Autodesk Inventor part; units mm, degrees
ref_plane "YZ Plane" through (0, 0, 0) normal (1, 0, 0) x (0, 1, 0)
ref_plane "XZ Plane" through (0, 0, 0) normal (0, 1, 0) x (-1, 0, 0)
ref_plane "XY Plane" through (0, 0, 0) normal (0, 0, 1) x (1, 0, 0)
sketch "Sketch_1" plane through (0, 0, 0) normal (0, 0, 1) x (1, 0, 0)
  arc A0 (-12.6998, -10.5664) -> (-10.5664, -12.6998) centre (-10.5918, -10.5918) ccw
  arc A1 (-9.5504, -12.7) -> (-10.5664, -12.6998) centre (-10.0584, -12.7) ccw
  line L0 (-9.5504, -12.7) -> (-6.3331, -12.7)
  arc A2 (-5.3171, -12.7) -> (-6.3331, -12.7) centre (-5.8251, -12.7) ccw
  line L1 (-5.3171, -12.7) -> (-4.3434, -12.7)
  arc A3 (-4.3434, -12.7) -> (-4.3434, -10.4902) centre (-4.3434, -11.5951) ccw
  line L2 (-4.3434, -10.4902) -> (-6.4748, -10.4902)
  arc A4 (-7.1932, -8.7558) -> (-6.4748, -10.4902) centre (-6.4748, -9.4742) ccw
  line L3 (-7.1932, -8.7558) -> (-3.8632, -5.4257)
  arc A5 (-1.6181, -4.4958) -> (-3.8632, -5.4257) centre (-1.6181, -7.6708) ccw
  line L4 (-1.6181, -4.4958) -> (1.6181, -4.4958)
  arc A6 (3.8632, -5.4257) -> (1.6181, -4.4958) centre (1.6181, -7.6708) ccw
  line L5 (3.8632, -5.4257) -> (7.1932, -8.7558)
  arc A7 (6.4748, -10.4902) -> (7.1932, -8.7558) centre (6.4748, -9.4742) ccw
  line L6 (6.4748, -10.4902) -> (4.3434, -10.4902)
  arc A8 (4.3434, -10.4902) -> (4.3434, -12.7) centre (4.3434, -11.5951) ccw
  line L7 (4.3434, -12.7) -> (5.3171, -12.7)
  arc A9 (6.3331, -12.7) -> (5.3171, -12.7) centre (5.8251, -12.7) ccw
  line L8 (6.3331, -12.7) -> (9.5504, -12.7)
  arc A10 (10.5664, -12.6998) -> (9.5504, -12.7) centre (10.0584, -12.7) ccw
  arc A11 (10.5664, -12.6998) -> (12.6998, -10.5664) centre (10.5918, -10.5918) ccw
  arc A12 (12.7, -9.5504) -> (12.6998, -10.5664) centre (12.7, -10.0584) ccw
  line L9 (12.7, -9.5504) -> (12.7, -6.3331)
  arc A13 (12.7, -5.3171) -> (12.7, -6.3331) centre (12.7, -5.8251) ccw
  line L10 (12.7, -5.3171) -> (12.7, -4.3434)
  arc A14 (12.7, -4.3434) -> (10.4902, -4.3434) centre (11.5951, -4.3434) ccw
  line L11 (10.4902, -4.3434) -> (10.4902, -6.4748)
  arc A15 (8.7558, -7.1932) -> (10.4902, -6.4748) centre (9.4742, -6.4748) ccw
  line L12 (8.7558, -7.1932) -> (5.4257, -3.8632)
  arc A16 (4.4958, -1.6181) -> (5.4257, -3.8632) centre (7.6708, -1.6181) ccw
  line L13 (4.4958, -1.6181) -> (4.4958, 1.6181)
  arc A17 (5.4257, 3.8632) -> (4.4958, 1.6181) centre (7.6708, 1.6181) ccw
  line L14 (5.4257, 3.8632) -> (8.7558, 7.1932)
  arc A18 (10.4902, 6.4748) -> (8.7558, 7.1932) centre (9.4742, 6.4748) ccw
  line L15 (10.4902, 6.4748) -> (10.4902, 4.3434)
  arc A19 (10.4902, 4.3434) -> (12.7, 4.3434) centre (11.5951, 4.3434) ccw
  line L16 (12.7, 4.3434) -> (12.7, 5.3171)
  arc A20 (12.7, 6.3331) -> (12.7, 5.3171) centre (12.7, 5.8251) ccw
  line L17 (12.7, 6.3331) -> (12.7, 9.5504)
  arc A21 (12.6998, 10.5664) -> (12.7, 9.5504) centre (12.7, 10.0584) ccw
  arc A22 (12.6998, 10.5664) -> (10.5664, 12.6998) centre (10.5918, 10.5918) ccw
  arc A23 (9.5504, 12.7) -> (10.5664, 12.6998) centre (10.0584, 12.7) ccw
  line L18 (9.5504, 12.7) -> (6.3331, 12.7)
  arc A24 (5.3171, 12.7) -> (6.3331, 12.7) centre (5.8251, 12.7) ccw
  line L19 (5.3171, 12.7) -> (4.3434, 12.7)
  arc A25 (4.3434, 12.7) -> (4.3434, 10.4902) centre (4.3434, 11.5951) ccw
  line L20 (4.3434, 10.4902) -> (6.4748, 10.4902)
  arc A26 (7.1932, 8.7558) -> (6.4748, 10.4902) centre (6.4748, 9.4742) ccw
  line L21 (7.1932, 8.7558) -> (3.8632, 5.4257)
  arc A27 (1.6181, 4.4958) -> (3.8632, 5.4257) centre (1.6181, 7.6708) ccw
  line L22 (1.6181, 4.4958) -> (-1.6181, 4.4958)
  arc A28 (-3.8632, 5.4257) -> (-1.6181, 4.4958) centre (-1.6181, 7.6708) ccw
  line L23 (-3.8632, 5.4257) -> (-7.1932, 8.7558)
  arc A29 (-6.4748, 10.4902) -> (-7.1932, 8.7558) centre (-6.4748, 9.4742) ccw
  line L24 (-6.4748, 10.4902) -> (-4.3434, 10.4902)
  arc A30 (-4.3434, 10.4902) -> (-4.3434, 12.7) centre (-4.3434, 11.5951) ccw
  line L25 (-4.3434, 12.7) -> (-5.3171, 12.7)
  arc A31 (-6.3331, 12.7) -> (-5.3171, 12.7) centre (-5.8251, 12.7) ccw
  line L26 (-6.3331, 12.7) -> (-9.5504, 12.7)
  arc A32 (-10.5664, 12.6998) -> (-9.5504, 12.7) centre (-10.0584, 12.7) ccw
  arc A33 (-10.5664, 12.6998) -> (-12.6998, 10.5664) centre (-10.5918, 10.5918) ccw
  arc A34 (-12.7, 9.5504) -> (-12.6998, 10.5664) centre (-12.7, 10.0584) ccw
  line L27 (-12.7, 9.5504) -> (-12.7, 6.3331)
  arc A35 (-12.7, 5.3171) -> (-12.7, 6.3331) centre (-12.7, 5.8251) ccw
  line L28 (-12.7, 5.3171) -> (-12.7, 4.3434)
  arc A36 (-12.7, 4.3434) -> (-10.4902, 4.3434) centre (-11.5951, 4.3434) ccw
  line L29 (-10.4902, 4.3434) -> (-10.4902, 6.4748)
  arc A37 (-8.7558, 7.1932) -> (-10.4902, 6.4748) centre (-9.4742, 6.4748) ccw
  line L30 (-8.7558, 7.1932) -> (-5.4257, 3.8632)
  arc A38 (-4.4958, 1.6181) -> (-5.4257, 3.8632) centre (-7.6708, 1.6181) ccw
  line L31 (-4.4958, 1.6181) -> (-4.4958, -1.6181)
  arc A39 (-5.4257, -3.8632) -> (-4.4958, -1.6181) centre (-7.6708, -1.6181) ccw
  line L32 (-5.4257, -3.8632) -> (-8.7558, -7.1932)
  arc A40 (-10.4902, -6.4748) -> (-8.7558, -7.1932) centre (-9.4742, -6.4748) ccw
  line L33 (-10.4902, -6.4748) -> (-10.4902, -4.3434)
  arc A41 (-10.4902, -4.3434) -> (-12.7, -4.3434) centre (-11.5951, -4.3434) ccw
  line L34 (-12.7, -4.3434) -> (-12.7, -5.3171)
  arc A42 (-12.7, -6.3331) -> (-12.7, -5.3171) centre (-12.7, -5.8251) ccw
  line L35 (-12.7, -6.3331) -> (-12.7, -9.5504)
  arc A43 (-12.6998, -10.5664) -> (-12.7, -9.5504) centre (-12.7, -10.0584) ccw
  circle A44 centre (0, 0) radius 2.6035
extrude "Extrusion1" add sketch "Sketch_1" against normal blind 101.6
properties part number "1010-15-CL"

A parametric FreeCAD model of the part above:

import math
import FreeCAD as App
import Part
import Sketcher
from FreeCAD import Vector
Q = App.Units.Quantity

doc = App.newDocument("Part")
body = doc.addObject("PartDesign::Body", "Body")

sketch1 = body.newObject("Sketcher::SketchObject", "Sketch")
sketch1.AttachmentSupport = (doc.getObject("XY_Plane"), [""])
sketch1.MapMode = "FlatFace"
sketch1.addGeometry([
    Part.ArcOfCircle(Part.Circle(Vector(-12.7, -10.1, 0), Vector(0, 0, 1), 0.5), math.radians(-90), math.radians(90)),
    Part.ArcOfCircle(Part.Circle(Vector(-10.6, -10.6, 0), Vector(0, 0, 1), 2.1), math.radians(179), math.radians(271)),
    Part.ArcOfCircle(Part.Circle(Vector(-10.1, -12.7, 0), Vector(0, 0, 1), 0.5), math.radians(0), math.radians(180)),
    Part.LineSegment(Vector(-9.6, -12.7, 0), Vector(-6.3, -12.7, 0)),
    Part.ArcOfCircle(Part.Circle(Vector(-5.8, -12.7, 0), Vector(0, 0, 1), 0.5), math.radians(0), math.radians(180)),
    Part.LineSegment(Vector(-5.3, -12.7, 0), Vector(-4.3, -12.7, 0)),
    Part.ArcOfCircle(Part.Circle(Vector(-4.3, -11.6, 0), Vector(0, 0, 1), 1.1), math.radians(-90), math.radians(90)),
    Part.LineSegment(Vector(-4.3, -10.5, 0), Vector(-6.5, -10.5, 0)),
    Part.ArcOfCircle(Part.Circle(Vector(-6.5, -9.5, 0), Vector(0, 0, 1), 1), math.radians(135), math.radians(270)),
    Part.LineSegment(Vector(-7.2, -8.8, 0), Vector(-3.9, -5.4, 0)),
    Part.ArcOfCircle(Part.Circle(Vector(-1.6, -7.7, 0), Vector(0, 0, 1), 3.2), math.radians(90), math.radians(135)),
    Part.LineSegment(Vector(-1.6, -4.5, 0), Vector(1.6, -4.5, 0)),
    Part.ArcOfCircle(Part.Circle(Vector(1.6, -7.7, 0), Vector(0, 0, 1), 3.2), math.radians(45), math.radians(90)),
    Part.LineSegment(Vector(3.9, -5.4, 0), Vector(7.2, -8.8, 0)),
    Part.ArcOfCircle(Part.Circle(Vector(6.5, -9.5, 0), Vector(0, 0, 1), 1), math.radians(-90), math.radians(45)),
    Part.LineSegment(Vector(6.5, -10.5, 0), Vector(4.3, -10.5, 0)),
    Part.ArcOfCircle(Part.Circle(Vector(4.3, -11.6, 0), Vector(0, 0, 1), 1.1), math.radians(90), math.radians(270)),
    Part.LineSegment(Vector(4.3, -12.7, 0), Vector(5.3, -12.7, 0)),
    Part.ArcOfCircle(Part.Circle(Vector(5.8, -12.7, 0), Vector(0, 0, 1), 0.5), math.radians(0), math.radians(180)),
    Part.LineSegment(Vector(6.3, -12.7, 0), Vector(9.6, -12.7, 0)),
    Part.ArcOfCircle(Part.Circle(Vector(10.1, -12.7, 0), Vector(0, 0, 1), 0.5), math.radians(0), math.radians(180)),
    Part.ArcOfCircle(Part.Circle(Vector(10.6, -10.6, 0), Vector(0, 0, 1), 2.1), math.radians(-91), math.radians(1)),
    Part.ArcOfCircle(Part.Circle(Vector(12.7, -10.1, 0), Vector(0, 0, 1), 0.5), math.radians(90), math.radians(270)),
    Part.LineSegment(Vector(12.7, -9.6, 0), Vector(12.7, -6.3, 0)),
    Part.ArcOfCircle(Part.Circle(Vector(12.7, -5.8, 0), Vector(0, 0, 1), 0.5), math.radians(90), math.radians(270)),
    Part.LineSegment(Vector(12.7, -5.3, 0), Vector(12.7, -4.3, 0)),
    Part.ArcOfCircle(Part.Circle(Vector(11.6, -4.3, 0), Vector(0, 0, 1), 1.1), math.radians(0), math.radians(180)),
    Part.LineSegment(Vector(10.5, -4.3, 0), Vector(10.5, -6.5, 0)),
    Part.ArcOfCircle(Part.Circle(Vector(9.5, -6.5, 0), Vector(0, 0, 1), 1), math.radians(-135), math.radians(0)),
    Part.LineSegment(Vector(8.8, -7.2, 0), Vector(5.4, -3.9, 0)),
    Part.ArcOfCircle(Part.Circle(Vector(7.7, -1.6, 0), Vector(0, 0, 1), 3.2), math.radians(180), math.radians(225)),
    Part.LineSegment(Vector(4.5, -1.6, 0), Vector(4.5, 1.6, 0)),
    Part.ArcOfCircle(Part.Circle(Vector(7.7, 1.6, 0), Vector(0, 0, 1), 3.2), math.radians(135), math.radians(180)),
    Part.LineSegment(Vector(5.4, 3.9, 0), Vector(8.8, 7.2, 0)),
    Part.ArcOfCircle(Part.Circle(Vector(9.5, 6.5, 0), Vector(0, 0, 1), 1), math.radians(0), math.radians(135)),
    Part.LineSegment(Vector(10.5, 6.5, 0), Vector(10.5, 4.3, 0)),
    Part.ArcOfCircle(Part.Circle(Vector(11.6, 4.3, 0), Vector(0, 0, 1), 1.1), math.radians(180), math.radians(360)),
    Part.LineSegment(Vector(12.7, 4.3, 0), Vector(12.7, 5.3, 0)),
    Part.ArcOfCircle(Part.Circle(Vector(12.7, 5.8, 0), Vector(0, 0, 1), 0.5), math.radians(90), math.radians(270)),
    Part.LineSegment(Vector(12.7, 6.3, 0), Vector(12.7, 9.6, 0)),
    Part.ArcOfCircle(Part.Circle(Vector(12.7, 10.1, 0), Vector(0, 0, 1), 0.5), math.radians(90), math.radians(270)),
    Part.ArcOfCircle(Part.Circle(Vector(10.6, 10.6, 0), Vector(0, 0, 1), 2.1), math.radians(-1), math.radians(91)),
    Part.ArcOfCircle(Part.Circle(Vector(10.1, 12.7, 0), Vector(0, 0, 1), 0.5), math.radians(180), math.radians(360)),
    Part.LineSegment(Vector(9.6, 12.7, 0), Vector(6.3, 12.7, 0)),
    Part.ArcOfCircle(Part.Circle(Vector(5.8, 12.7, 0), Vector(0, 0, 1), 0.5), math.radians(180), math.radians(360)),
    Part.LineSegment(Vector(5.3, 12.7, 0), Vector(4.3, 12.7, 0)),
    Part.ArcOfCircle(Part.Circle(Vector(4.3, 11.6, 0), Vector(0, 0, 1), 1.1), math.radians(90), math.radians(270)),
    Part.LineSegment(Vector(4.3, 10.5, 0), Vector(6.5, 10.5, 0)),
    Part.ArcOfCircle(Part.Circle(Vector(6.5, 9.5, 0), Vector(0, 0, 1), 1), math.radians(-45), math.radians(90)),
    Part.LineSegment(Vector(7.2, 8.8, 0), Vector(3.9, 5.4, 0)),
    Part.ArcOfCircle(Part.Circle(Vector(1.6, 7.7, 0), Vector(0, 0, 1), 3.2), math.radians(-90), math.radians(-45)),
    Part.LineSegment(Vector(1.6, 4.5, 0), Vector(-1.6, 4.5, 0)),
    Part.ArcOfCircle(Part.Circle(Vector(-1.6, 7.7, 0), Vector(0, 0, 1), 3.2), math.radians(-135), math.radians(-90)),
    Part.LineSegment(Vector(-3.9, 5.4, 0), Vector(-7.2, 8.8, 0)),
    Part.ArcOfCircle(Part.Circle(Vector(-6.5, 9.5, 0), Vector(0, 0, 1), 1), math.radians(90), math.radians(225)),
    Part.LineSegment(Vector(-6.5, 10.5, 0), Vector(-4.3, 10.5, 0)),
    Part.ArcOfCircle(Part.Circle(Vector(-4.3, 11.6, 0), Vector(0, 0, 1), 1.1), math.radians(-90), math.radians(90)),
    Part.LineSegment(Vector(-4.3, 12.7, 0), Vector(-5.3, 12.7, 0)),
    Part.ArcOfCircle(Part.Circle(Vector(-5.8, 12.7, 0), Vector(0, 0, 1), 0.5), math.radians(180), math.radians(360)),
    Part.LineSegment(Vector(-6.3, 12.7, 0), Vector(-9.6, 12.7, 0)),
    Part.ArcOfCircle(Part.Circle(Vector(-10.1, 12.7, 0), Vector(0, 0, 1), 0.5), math.radians(-180), math.radians(0)),
    Part.ArcOfCircle(Part.Circle(Vector(-10.6, 10.6, 0), Vector(0, 0, 1), 2.1), math.radians(89), math.radians(181)),
    Part.ArcOfCircle(Part.Circle(Vector(-12.7, 10.1, 0), Vector(0, 0, 1), 0.5), math.radians(-90), math.radians(90)),
    Part.LineSegment(Vector(-12.7, 9.6, 0), Vector(-12.7, 6.3, 0)),
    Part.ArcOfCircle(Part.Circle(Vector(-12.7, 5.8, 0), Vector(0, 0, 1), 0.5), math.radians(-90), math.radians(90)),
    Part.LineSegment(Vector(-12.7, 5.3, 0), Vector(-12.7, 4.3, 0)),
    Part.ArcOfCircle(Part.Circle(Vector(-11.6, 4.3, 0), Vector(0, 0, 1), 1.1), math.radians(180), math.radians(360)),
    Part.LineSegment(Vector(-10.5, 4.3, 0), Vector(-10.5, 6.5, 0)),
    Part.ArcOfCircle(Part.Circle(Vector(-9.5, 6.5, 0), Vector(0, 0, 1), 1), math.radians(45), math.radians(180)),
    Part.LineSegment(Vector(-8.8, 7.2, 0), Vector(-5.4, 3.9, 0)),
    Part.ArcOfCircle(Part.Circle(Vector(-7.7, 1.6, 0), Vector(0, 0, 1), 3.2), math.radians(0), math.radians(45)),
    Part.LineSegment(Vector(-4.5, 1.6, 0), Vector(-4.5, -1.6, 0)),
    Part.ArcOfCircle(Part.Circle(Vector(-7.7, -1.6, 0), Vector(0, 0, 1), 3.2), math.radians(-45), math.radians(0)),
    Part.LineSegment(Vector(-5.4, -3.9, 0), Vector(-8.8, -7.2, 0)),
    Part.ArcOfCircle(Part.Circle(Vector(-9.5, -6.5, 0), Vector(0, 0, 1), 1), math.radians(180), math.radians(315)),
    Part.LineSegment(Vector(-10.5, -6.5, 0), Vector(-10.5, -4.3, 0)),
    Part.ArcOfCircle(Part.Circle(Vector(-11.6, -4.3, 0), Vector(0, 0, 1), 1.1), math.radians(0), math.radians(180)),
    Part.LineSegment(Vector(-12.7, -4.3, 0), Vector(-12.7, -5.3, 0)),
    Part.ArcOfCircle(Part.Circle(Vector(-12.7, -5.8, 0), Vector(0, 0, 1), 0.5), math.radians(-90), math.radians(90)),
    Part.LineSegment(Vector(-12.7, -6.3, 0), Vector(-12.7, -9.6, 0)),
    Part.Circle(Vector(0, 0, 0), Vector(0, 0, 1), 2.6),
], False)
sketch1.addConstraint([
    Sketcher.Constraint("Coincident", 0, 1, 1, 1),
    Sketcher.Constraint("Coincident", 1, 2, 2, 2),
    Sketcher.Constraint("Coincident", 2, 1, 3, 1),
    Sketcher.Constraint("Coincident", 3, 2, 4, 2),
    Sketcher.Constraint("Coincident", 4, 1, 5, 1),
    Sketcher.Constraint("Tangent", 5, 2, 6, 1),
    Sketcher.Constraint("Tangent", 6, 2, 7, 1),
    Sketcher.Constraint("Tangent", 7, 2, 8, 2),
    Sketcher.Constraint("Tangent", 8, 1, 9, 1),
    Sketcher.Constraint("Tangent", 9, 2, 10, 2),
    Sketcher.Constraint("Tangent", 10, 1, 11, 1),
    Sketcher.Constraint("Tangent", 11, 2, 12, 2),
    Sketcher.Constraint("Tangent", 12, 1, 13, 1),
    Sketcher.Constraint("Tangent", 13, 2, 14, 2),
    Sketcher.Constraint("Tangent", 14, 1, 15, 1),
    Sketcher.Constraint("Tangent", 15, 2, 16, 1),
    Sketcher.Constraint("Tangent", 16, 2, 17, 1),
    Sketcher.Constraint("Coincident", 17, 2, 18, 2),
    Sketcher.Constraint("Coincident", 18, 1, 19, 1),
    Sketcher.Constraint("Coincident", 19, 2, 20, 2),
    Sketcher.Constraint("Coincident", 20, 1, 21, 1),
    Sketcher.Constraint("Coincident", 21, 2, 22, 2),
    Sketcher.Constraint("Coincident", 22, 1, 23, 1),
    Sketcher.Constraint("Coincident", 23, 2, 24, 2),
    Sketcher.Constraint("Coincident", 24, 1, 25, 1),
    Sketcher.Constraint("Tangent", 25, 2, 26, 1),
    Sketcher.Constraint("Tangent", 26, 2, 27, 1),
    Sketcher.Constraint("Tangent", 27, 2, 28, 2),
    Sketcher.Constraint("Tangent", 28, 1, 29, 1),
    Sketcher.Constraint("Tangent", 29, 2, 30, 2),
    Sketcher.Constraint("Tangent", 30, 1, 31, 1),
    Sketcher.Constraint("Tangent", 31, 2, 32, 2),
    Sketcher.Constraint("Tangent", 32, 1, 33, 1),
    Sketcher.Constraint("Tangent", 33, 2, 34, 2),
    Sketcher.Constraint("Tangent", 34, 1, 35, 1),
    Sketcher.Constraint("Tangent", 35, 2, 36, 1),
    Sketcher.Constraint("Tangent", 36, 2, 37, 1),
    Sketcher.Constraint("Coincident", 37, 2, 38, 2),
    Sketcher.Constraint("Coincident", 38, 1, 39, 1),
    Sketcher.Constraint("Coincident", 39, 2, 40, 2),
    Sketcher.Constraint("Coincident", 40, 1, 41, 1),
    Sketcher.Constraint("Coincident", 41, 2, 42, 2),
    Sketcher.Constraint("Coincident", 42, 1, 43, 1),
    Sketcher.Constraint("Coincident", 43, 2, 44, 2),
    Sketcher.Constraint("Coincident", 44, 1, 45, 1),
    Sketcher.Constraint("Tangent", 45, 2, 46, 1),
    Sketcher.Constraint("Tangent", 46, 2, 47, 1),
    Sketcher.Constraint("Tangent", 47, 2, 48, 2),
    Sketcher.Constraint("Tangent", 48, 1, 49, 1),
    Sketcher.Constraint("Tangent", 49, 2, 50, 2),
    Sketcher.Constraint("Tangent", 50, 1, 51, 1),
    Sketcher.Constraint("Tangent", 51, 2, 52, 2),
    Sketcher.Constraint("Tangent", 52, 1, 53, 1),
    Sketcher.Constraint("Tangent", 53, 2, 54, 2),
    Sketcher.Constraint("Tangent", 54, 1, 55, 1),
    Sketcher.Constraint("Tangent", 55, 2, 56, 1),
    Sketcher.Constraint("Tangent", 56, 2, 57, 1),
    Sketcher.Constraint("Coincident", 57, 2, 58, 2),
    Sketcher.Constraint("Coincident", 58, 1, 59, 1),
    Sketcher.Constraint("Coincident", 59, 2, 60, 2),
    Sketcher.Constraint("Coincident", 60, 1, 61, 1),
    Sketcher.Constraint("Coincident", 61, 2, 62, 2),
    Sketcher.Constraint("Coincident", 62, 1, 63, 1),
    Sketcher.Constraint("Coincident", 63, 2, 64, 2),
    Sketcher.Constraint("Coincident", 64, 1, 65, 1),
    Sketcher.Constraint("Tangent", 65, 2, 66, 1),
    Sketcher.Constraint("Tangent", 66, 2, 67, 1),
    Sketcher.Constraint("Tangent", 67, 2, 68, 2),
    Sketcher.Constraint("Tangent", 68, 1, 69, 1),
    Sketcher.Constraint("Tangent", 69, 2, 70, 2),
    Sketcher.Constraint("Tangent", 70, 1, 71, 1),
    Sketcher.Constraint("Tangent", 71, 2, 72, 2),
    Sketcher.Constraint("Tangent", 72, 1, 73, 1),
    Sketcher.Constraint("Tangent", 73, 2, 74, 2),
    Sketcher.Constraint("Tangent", 74, 1, 75, 1),
    Sketcher.Constraint("Tangent", 75, 2, 76, 1),
    Sketcher.Constraint("Tangent", 76, 2, 77, 1),
    Sketcher.Constraint("Coincident", 77, 2, 78, 2),
    Sketcher.Constraint("Coincident", 78, 1, 79, 1),
    Sketcher.Constraint("Coincident", 79, 2, 0, 2),
    Sketcher.Constraint("Horizontal", 3),
    Sketcher.Constraint("Horizontal", 5),
    Sketcher.Constraint("Horizontal", 7),
    Sketcher.Constraint("Horizontal", 11),
    Sketcher.Constraint("Horizontal", 15),
    Sketcher.Constraint("Horizontal", 17),
    Sketcher.Constraint("Horizontal", 19),
    Sketcher.Constraint("Vertical", 23),
    Sketcher.Constraint("Vertical", 25),
    Sketcher.Constraint("Vertical", 27),
    Sketcher.Constraint("Vertical", 31),
    Sketcher.Constraint("Vertical", 35),
    Sketcher.Constraint("Vertical", 37),
    Sketcher.Constraint("Vertical", 39),
    Sketcher.Constraint("Horizontal", 43),
    Sketcher.Constraint("Horizontal", 45),
    Sketcher.Constraint("Horizontal", 47),
    Sketcher.Constraint("Horizontal", 51),
    Sketcher.Constraint("Horizontal", 55),
    Sketcher.Constraint("Horizontal", 57),
    Sketcher.Constraint("Horizontal", 59),
    Sketcher.Constraint("Vertical", 63),
    Sketcher.Constraint("Vertical", 65),
    Sketcher.Constraint("Vertical", 67),
    Sketcher.Constraint("Vertical", 71),
    Sketcher.Constraint("Vertical", 75),
    Sketcher.Constraint("Vertical", 77),
    Sketcher.Constraint("Vertical", 79),
    Sketcher.Constraint("Coincident", 80, 3, -1, 1),
    Sketcher.Constraint("Equal", 0, 2),
    Sketcher.Constraint("Equal", 2, 4),
    Sketcher.Constraint("Equal", 10, 12),
    Sketcher.Constraint("Equal", 8, 14),
    Sketcher.Constraint("Equal", 6, 16),
    Sketcher.Constraint("Equal", 4, 18),
    Sketcher.Constraint("Equal", 18, 20),
    Sketcher.Constraint("Equal", 1, 21),
    Sketcher.Constraint("Equal", 20, 22),
    Sketcher.Constraint("Equal", 22, 24),
    Sketcher.Constraint("Equal", 16, 26),
    Sketcher.Constraint("Equal", 14, 28),
    Sketcher.Constraint("Equal", 12, 30),
    Sketcher.Constraint("Equal", 30, 32),
    Sketcher.Constraint("Equal", 28, 34),
    Sketcher.Constraint("Equal", 26, 36),
    Sketcher.Constraint("Equal", 24, 38),
    Sketcher.Constraint("Equal", 38, 40),
    Sketcher.Constraint("Equal", 21, 41),
    Sketcher.Constraint("Equal", 40, 42),
    Sketcher.Constraint("Equal", 42, 44),
    Sketcher.Constraint("Equal", 36, 46),
    Sketcher.Constraint("Equal", 34, 48),
    Sketcher.Constraint("Equal", 32, 50),
    Sketcher.Constraint("Equal", 50, 52),
    Sketcher.Constraint("Equal", 48, 54),
    Sketcher.Constraint("Equal", 46, 56),
    Sketcher.Constraint("Equal", 44, 58),
    Sketcher.Constraint("Equal", 58, 60),
    Sketcher.Constraint("Equal", 41, 61),
    Sketcher.Constraint("Equal", 60, 62),
    Sketcher.Constraint("Equal", 62, 64),
    Sketcher.Constraint("Equal", 56, 66),
    Sketcher.Constraint("Equal", 54, 68),
    Sketcher.Constraint("Equal", 52, 70),
    Sketcher.Constraint("Equal", 70, 72),
    Sketcher.Constraint("Equal", 68, 74),
    Sketcher.Constraint("Equal", 66, 76),
    Sketcher.Constraint("Equal", 64, 78),
    Sketcher.Constraint("Symmetric", 0, 3, 40, 3, -1, 1),
    Sketcher.Constraint("Symmetric", 1, 3, 41, 3, -1, 1),
    Sketcher.Constraint("Symmetric", 2, 3, 42, 3, -1, 1),
    Sketcher.Constraint("Symmetric", 4, 3, 44, 3, -1, 1),
    Sketcher.Constraint("Symmetric", 6, 3, 46, 3, -1, 1),
    Sketcher.Constraint("Symmetric", 10, 3, 50, 3, -1, 1),
    Sketcher.Constraint("Symmetric", 14, 3, 54, 3, -1, 1),
    Sketcher.Constraint("Symmetric", 18, 3, 58, 3, -1, 1),
    Sketcher.Constraint("Symmetric", 20, 3, 60, 3, -1, 1),
    Sketcher.Constraint("Symmetric", 21, 3, 61, 3, -1, 1),
    Sketcher.Constraint("Symmetric", 22, 3, 62, 3, -1, 1),
    Sketcher.Constraint("Symmetric", 24, 3, 64, 3, -1, 1),
    Sketcher.Constraint("Symmetric", 26, 3, 66, 3, -1, 1),
    Sketcher.Constraint("Symmetric", 30, 3, 70, 3, -1, 1),
    Sketcher.Constraint("Symmetric", 34, 3, 74, 3, -1, 1),
    Sketcher.Constraint("Symmetric", 38, 3, 78, 3, -1, 1),
    Sketcher.Constraint("Symmetric", 8, 3, 14, 3, -2),
    Sketcher.Constraint("Symmetric", 4, 3, 18, 3, -2),
    Sketcher.Constraint("Symmetric", 2, 3, 20, 3, -2),
    Sketcher.Constraint("Symmetric", 1, 3, 21, 3, -2),
    Sketcher.Constraint("Symmetric", 0, 3, 22, 3, -2),
    Sketcher.Constraint("Symmetric", 38, 3, 64, 3, -2),
    Sketcher.Constraint("Symmetric", 36, 3, 66, 3, -2),
    Sketcher.Constraint("Symmetric", 49, 2, 52, 1, -2),
    Sketcher.Constraint("Symmetric", 33, 2, 68, 1, -2),
    Sketcher.Constraint("Symmetric", 29, 2, 72, 1, -2),
    Sketcher.Constraint("Perpendicular", 9, 13),
    Sketcher.Constraint("Parallel", 13, 29),
    Sketcher.Constraint("Perpendicular", 29, 33),
    Sketcher.Constraint("Horizontal", 2, 3, 4, 3),
    Sketcher.Constraint("Horizontal", 26, 3, 76, 3),
    Sketcher.Constraint("Horizontal", 20, 3, 1, 2),
    Sketcher.Constraint("Horizontal", 1, 2, 2, 1),
    Sketcher.Constraint("Horizontal", 3, 2, 4, 1),
    Sketcher.Constraint("Horizontal", 17, 2, 18, 1),
    Sketcher.Constraint("Horizontal", 41, 2, 42, 1),
    Sketcher.Constraint("Horizontal", 57, 2, 58, 1),
    Sketcher.Constraint("Vertical", 22, 3, 24, 3),
    Sketcher.Constraint("Vertical", 16, 3, 46, 3),
    Sketcher.Constraint("Vertical", 6, 3, 56, 3),
    Sketcher.Constraint("Vertical", 78, 3, 0, 1),
    Sketcher.Constraint("Vertical", 21, 2, 22, 1),
    Sketcher.Constraint("Vertical", 23, 2, 24, 1),
    Sketcher.Constraint("Vertical", 37, 2, 38, 1),
    Sketcher.Constraint("Vertical", 61, 2, 62, 1),
    Sketcher.Constraint("Vertical", 77, 2, 78, 1),
    Sketcher.Constraint("Equal", 59, 23),
    Sketcher.Constraint("Equal", 57, 25),
    Sketcher.Constraint("Equal", 55, 27),
    Sketcher.Constraint("Equal", 51, 31),
    Sketcher.Constraint("Equal", 13, 29),
    Sketcher.Constraint("Radius", 0, Q("0.02 in")),
    Sketcher.Constraint("Radius", 8, Q("0.04 in")),
    Sketcher.Constraint("Diameter", 80, Q("0.205 in")),
    Sketcher.Constraint("Radius", 1, Q("0.083 in")),
    Sketcher.Constraint("Radius", 10, Q("0.125 in")),
    Sketcher.Constraint("DistanceX", 0, 3, -1, 1, Q("0.5 in")),
    Sketcher.Constraint("DistanceY", 2, 3, -1, 1, Q("0.5 in")),
    Sketcher.Constraint("Radius", 6, Q("0.0435 in")),
    Sketcher.Constraint("DistanceX", 11, 1, 11, 2, Q("0.1274 in")),
    Sketcher.Constraint("DistanceY", 0, 3, -1, 1, Q("0.396 in")),
    Sketcher.Constraint("DistanceX", 6, 3, -1, 1, Q("0.171 in")),
    Sketcher.Constraint("DistanceY", 10, 3, -1, 1, Q("0.302 in")),
    Sketcher.Constraint("DistanceX", 3, 1, 3, 2, 3.2173),
])
pad1 = body.newObject("PartDesign::Pad", "Pad")
pad1.Profile = sketch1
pad1.Length = Q("4 in")
pad1.Reversed = True

doc.recompute()
